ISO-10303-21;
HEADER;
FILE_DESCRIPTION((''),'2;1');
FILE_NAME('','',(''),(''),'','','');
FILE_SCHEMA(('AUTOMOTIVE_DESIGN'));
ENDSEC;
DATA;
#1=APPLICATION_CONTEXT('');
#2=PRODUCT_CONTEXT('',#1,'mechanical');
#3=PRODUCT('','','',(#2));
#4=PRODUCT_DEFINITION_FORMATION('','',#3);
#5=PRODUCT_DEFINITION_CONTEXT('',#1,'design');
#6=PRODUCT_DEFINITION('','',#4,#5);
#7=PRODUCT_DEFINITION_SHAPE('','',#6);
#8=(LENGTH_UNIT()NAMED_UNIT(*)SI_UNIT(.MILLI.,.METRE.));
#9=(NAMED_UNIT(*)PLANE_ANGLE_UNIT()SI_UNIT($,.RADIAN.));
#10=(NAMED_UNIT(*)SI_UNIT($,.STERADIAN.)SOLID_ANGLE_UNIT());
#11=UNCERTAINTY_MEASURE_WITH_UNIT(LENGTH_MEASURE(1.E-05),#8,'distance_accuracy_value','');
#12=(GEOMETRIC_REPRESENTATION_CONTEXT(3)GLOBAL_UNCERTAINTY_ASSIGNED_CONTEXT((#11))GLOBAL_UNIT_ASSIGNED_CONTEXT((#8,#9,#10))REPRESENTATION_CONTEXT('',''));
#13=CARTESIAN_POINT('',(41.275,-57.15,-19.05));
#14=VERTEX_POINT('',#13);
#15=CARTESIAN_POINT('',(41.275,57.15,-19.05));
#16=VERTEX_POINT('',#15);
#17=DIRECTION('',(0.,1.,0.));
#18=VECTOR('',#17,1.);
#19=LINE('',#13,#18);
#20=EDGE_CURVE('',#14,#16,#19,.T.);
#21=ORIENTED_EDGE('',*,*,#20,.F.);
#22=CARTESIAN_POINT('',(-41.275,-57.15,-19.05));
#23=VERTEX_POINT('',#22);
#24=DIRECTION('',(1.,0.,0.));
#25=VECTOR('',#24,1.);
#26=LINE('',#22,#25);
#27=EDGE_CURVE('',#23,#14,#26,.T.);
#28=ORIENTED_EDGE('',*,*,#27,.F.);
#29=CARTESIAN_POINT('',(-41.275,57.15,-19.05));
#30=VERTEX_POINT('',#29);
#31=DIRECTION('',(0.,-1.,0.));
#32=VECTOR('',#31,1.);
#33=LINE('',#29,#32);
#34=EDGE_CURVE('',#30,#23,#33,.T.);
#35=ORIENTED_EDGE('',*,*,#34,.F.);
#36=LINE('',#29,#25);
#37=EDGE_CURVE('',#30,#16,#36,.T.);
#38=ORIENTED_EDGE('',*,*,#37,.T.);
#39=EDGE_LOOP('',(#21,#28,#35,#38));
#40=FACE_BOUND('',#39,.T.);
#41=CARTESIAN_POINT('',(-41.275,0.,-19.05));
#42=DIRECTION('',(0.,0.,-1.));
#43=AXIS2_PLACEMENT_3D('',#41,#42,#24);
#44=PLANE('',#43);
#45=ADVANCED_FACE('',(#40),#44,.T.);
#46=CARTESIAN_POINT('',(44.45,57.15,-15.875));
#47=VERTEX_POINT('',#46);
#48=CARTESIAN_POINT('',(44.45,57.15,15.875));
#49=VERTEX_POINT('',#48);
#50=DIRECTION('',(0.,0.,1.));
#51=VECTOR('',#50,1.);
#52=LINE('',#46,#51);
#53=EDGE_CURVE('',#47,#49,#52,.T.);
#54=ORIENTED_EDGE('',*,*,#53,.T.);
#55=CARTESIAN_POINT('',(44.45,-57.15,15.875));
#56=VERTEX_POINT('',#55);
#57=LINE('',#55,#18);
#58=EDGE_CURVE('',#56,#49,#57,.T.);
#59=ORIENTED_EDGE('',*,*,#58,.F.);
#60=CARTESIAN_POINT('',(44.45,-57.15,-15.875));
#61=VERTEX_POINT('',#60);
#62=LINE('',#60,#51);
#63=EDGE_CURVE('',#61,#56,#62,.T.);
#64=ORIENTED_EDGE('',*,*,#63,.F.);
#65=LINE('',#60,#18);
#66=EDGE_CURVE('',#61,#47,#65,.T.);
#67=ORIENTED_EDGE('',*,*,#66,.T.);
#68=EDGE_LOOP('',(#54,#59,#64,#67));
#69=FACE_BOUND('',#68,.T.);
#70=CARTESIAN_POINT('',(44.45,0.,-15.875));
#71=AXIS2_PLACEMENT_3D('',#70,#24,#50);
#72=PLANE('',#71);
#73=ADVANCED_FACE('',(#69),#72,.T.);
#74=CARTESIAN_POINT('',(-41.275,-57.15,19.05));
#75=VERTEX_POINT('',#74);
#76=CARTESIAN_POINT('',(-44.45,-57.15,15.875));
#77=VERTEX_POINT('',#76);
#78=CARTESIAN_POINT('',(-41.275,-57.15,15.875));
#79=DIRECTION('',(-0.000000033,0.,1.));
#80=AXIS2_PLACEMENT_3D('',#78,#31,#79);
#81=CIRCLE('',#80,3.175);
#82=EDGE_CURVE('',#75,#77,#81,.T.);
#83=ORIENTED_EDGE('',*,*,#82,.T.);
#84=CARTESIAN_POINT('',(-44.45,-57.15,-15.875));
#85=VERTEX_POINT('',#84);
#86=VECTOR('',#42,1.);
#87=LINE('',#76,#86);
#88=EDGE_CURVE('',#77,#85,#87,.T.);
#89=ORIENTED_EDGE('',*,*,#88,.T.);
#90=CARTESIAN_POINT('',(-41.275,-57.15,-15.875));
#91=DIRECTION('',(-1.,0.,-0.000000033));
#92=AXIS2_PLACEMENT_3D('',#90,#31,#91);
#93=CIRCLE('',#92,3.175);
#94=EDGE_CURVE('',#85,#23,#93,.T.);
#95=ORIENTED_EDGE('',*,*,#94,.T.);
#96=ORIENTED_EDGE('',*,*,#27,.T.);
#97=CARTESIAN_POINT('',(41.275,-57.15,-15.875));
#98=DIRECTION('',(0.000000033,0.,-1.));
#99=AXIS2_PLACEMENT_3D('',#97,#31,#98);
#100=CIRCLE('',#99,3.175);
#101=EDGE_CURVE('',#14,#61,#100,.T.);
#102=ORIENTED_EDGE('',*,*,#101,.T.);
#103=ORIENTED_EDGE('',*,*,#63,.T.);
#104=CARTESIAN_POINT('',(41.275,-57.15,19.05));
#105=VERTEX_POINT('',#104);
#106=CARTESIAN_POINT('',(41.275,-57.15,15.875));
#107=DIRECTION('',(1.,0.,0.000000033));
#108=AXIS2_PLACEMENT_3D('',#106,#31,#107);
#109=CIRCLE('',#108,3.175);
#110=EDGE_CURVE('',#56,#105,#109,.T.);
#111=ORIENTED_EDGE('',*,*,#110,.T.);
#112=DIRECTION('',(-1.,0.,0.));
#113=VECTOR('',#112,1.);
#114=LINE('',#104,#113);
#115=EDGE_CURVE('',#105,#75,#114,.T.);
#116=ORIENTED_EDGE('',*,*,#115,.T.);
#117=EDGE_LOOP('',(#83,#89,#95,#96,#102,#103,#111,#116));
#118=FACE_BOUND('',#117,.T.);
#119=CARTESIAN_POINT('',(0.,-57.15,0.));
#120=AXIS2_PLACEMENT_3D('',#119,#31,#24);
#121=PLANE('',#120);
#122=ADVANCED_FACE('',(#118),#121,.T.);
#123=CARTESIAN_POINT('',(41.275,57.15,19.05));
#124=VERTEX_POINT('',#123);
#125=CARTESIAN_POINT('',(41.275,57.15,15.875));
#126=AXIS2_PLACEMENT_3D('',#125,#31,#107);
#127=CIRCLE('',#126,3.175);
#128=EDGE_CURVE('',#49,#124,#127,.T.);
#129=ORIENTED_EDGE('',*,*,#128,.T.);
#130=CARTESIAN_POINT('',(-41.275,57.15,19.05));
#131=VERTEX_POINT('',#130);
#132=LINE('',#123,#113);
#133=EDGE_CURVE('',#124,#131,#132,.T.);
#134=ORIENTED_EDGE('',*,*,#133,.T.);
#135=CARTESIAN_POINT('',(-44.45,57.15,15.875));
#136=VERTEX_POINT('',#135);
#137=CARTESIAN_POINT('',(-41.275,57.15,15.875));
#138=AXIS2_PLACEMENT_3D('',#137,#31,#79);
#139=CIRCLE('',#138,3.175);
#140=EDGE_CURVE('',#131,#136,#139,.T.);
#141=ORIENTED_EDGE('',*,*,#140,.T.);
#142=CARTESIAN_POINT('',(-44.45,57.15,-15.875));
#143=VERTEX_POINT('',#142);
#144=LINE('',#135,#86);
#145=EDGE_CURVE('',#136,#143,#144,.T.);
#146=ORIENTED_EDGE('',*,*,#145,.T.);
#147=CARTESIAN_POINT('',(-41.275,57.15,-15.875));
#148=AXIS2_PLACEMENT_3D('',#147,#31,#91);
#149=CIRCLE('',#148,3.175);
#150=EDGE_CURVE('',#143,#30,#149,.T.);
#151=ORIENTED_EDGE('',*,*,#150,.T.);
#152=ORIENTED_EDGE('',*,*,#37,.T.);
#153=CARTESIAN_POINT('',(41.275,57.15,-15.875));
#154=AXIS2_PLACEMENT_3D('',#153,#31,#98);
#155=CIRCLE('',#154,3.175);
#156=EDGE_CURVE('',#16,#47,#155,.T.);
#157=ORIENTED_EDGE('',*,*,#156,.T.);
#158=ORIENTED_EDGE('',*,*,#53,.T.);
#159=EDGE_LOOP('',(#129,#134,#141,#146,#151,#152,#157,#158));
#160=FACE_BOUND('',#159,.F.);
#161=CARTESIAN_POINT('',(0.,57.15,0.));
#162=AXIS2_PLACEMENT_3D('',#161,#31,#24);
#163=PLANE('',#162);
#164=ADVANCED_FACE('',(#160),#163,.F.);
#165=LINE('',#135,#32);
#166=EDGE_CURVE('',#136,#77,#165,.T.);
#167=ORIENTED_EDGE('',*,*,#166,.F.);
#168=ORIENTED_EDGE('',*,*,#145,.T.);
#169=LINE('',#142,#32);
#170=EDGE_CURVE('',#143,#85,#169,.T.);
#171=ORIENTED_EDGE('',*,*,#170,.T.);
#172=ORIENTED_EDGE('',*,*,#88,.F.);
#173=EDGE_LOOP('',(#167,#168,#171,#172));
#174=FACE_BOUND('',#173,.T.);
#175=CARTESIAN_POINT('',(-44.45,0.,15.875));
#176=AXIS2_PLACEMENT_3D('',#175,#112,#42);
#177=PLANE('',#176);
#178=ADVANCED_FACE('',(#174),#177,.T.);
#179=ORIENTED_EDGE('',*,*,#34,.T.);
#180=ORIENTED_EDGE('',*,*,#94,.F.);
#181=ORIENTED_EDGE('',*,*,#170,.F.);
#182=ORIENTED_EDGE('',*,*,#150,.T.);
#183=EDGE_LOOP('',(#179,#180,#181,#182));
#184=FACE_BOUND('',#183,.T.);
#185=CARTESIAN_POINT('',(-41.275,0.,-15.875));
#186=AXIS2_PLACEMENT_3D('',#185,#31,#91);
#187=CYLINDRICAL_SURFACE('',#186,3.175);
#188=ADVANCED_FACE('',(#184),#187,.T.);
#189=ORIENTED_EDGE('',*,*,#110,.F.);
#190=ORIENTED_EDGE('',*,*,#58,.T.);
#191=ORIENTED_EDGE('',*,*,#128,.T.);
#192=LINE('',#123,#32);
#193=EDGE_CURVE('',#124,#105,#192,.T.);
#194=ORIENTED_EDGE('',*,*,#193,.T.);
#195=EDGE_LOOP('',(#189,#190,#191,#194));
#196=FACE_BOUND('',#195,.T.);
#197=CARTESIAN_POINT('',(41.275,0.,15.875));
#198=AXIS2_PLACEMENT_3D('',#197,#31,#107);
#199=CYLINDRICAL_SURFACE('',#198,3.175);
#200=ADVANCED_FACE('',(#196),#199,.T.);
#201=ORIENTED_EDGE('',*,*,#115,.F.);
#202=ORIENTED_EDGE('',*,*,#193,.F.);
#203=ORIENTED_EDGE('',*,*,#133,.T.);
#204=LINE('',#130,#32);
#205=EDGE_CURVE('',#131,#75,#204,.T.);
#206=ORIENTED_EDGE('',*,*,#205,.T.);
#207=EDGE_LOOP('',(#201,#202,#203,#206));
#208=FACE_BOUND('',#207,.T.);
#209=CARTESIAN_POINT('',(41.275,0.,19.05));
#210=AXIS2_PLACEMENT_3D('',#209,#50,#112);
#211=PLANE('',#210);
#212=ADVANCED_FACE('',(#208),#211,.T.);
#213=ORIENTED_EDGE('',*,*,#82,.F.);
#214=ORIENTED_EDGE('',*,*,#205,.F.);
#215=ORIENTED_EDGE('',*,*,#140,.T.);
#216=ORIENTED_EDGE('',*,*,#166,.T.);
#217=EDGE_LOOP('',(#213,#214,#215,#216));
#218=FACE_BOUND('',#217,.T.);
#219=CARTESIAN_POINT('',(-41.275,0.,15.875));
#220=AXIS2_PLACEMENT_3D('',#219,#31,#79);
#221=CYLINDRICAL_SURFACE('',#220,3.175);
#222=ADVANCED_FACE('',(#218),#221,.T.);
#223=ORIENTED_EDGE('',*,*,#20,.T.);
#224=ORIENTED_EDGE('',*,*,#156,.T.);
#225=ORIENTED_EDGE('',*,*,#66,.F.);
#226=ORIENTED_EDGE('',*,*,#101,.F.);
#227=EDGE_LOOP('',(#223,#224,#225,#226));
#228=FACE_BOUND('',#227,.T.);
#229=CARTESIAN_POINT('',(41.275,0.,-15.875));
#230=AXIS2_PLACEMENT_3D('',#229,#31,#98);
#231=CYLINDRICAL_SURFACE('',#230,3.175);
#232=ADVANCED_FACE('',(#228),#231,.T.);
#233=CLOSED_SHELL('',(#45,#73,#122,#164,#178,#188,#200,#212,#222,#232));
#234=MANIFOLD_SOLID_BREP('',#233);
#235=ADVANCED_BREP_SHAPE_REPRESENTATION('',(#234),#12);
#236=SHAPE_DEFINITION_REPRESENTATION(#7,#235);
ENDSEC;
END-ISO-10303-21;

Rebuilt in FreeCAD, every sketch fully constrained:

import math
import FreeCAD as App
import Part
import Sketcher
Q = App.Units.Quantity

doc = App.newDocument("Part")
body = doc.addObject("PartDesign::Body", "Body")

sketch1 = body.newObject("Sketcher::SketchObject", "Sketch")
sketch1.AttachmentSupport = (doc.getObject("XZ_Plane"), [""])
sketch1.MapMode = "FlatFace"
sketch1.addGeometry([
    Part.ArcOfCircle(Part.Circle(App.Vector(41.3, 15.9, 0), App.Vector(0, 0, 1), 3.2), math.radians(0), math.radians(90)),
    Part.LineSegment(App.Vector(41.3, 19.1, 0), App.Vector(-41.3, 19.1, 0)),
    Part.ArcOfCircle(Part.Circle(App.Vector(-41.3, 15.9, 0), App.Vector(0, 0, 1), 3.2), math.radians(90), math.radians(180)),
    Part.LineSegment(App.Vector(-44.5, 15.9, 0), App.Vector(-44.5, -15.9, 0)),
    Part.ArcOfCircle(Part.Circle(App.Vector(-41.3, -15.9, 0), App.Vector(0, 0, 1), 3.2), math.radians(-180), math.radians(-90)),
    Part.LineSegment(App.Vector(-41.3, -19.1, 0), App.Vector(41.3, -19.1, 0)),
    Part.ArcOfCircle(Part.Circle(App.Vector(41.3, -15.9, 0), App.Vector(0, 0, 1), 3.2), math.radians(-90), math.radians(0)),
    Part.LineSegment(App.Vector(44.5, -15.9, 0), App.Vector(44.5, 15.9, 0)),
], False)
sketch1.addConstraint([
    Sketcher.Constraint("Tangent", 0, 2, 1, 1),
    Sketcher.Constraint("Tangent", 1, 2, 2, 1),
    Sketcher.Constraint("Tangent", 2, 2, 3, 1),
    Sketcher.Constraint("Tangent", 3, 2, 4, 1),
    Sketcher.Constraint("Tangent", 4, 2, 5, 1),
    Sketcher.Constraint("Tangent", 5, 2, 6, 1),
    Sketcher.Constraint("Tangent", 6, 2, 7, 1),
    Sketcher.Constraint("Tangent", 7, 2, 0, 1),
    Sketcher.Constraint("Horizontal", 1),
    Sketcher.Constraint("Vertical", 3),
    Sketcher.Constraint("Horizontal", 5),
    Sketcher.Constraint("Vertical", 7),
    Sketcher.Constraint("Equal", 0, 2),
    Sketcher.Constraint("Equal", 2, 4),
    Sketcher.Constraint("Equal", 4, 6),
    Sketcher.Constraint("Symmetric", 0, 3, 4, 3, -1, 1),
    Sketcher.Constraint("Radius", 0, Q("0.125 in")),
    Sketcher.Constraint("DistanceX", 1, 2, 1, 1, Q("3.25 in")),
    Sketcher.Constraint("DistanceY", 3, 2, 3, 1, Q("1.25 in")),
])
pad1 = body.newObject("PartDesign::Pad", "Pad")
pad1.Profile = sketch1
pad1.Length = Q("4.5 in")
pad1.Midplane = True

doc.recompute()
